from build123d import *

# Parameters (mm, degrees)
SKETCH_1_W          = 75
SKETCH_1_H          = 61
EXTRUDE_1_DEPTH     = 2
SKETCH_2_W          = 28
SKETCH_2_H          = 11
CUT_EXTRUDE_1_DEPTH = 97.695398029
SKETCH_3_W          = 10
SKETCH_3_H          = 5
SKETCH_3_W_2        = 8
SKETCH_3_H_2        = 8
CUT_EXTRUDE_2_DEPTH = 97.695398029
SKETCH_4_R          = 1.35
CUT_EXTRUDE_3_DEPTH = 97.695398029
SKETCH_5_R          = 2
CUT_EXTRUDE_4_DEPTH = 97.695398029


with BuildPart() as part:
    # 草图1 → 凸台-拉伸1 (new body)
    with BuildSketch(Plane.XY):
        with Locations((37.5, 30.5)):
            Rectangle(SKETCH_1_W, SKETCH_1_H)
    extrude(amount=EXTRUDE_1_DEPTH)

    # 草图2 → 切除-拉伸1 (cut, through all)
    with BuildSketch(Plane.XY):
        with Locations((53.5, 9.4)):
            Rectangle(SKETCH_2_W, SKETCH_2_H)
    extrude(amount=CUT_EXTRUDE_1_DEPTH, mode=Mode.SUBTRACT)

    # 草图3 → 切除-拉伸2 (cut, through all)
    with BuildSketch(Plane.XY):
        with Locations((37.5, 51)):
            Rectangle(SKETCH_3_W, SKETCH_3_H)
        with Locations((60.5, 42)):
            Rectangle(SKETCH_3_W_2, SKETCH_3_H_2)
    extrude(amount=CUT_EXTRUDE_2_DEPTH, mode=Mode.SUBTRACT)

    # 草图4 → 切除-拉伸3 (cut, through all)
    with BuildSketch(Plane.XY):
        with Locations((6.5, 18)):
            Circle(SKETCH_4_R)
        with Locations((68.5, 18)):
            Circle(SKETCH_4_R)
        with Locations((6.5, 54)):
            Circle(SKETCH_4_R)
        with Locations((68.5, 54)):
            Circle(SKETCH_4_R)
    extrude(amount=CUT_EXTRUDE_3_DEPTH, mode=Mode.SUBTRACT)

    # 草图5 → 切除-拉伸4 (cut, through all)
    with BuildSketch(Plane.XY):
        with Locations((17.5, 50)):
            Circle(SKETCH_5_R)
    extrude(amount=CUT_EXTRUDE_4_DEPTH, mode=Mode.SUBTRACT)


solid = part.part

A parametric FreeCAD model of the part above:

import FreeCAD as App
import Part
import Sketcher


def add_polygon(sketch, points):
    """Adds a closed chain of lines whose ends are joined by coincident constraints."""
    first, n = sketch.GeometryCount, len(points)
    for a, b in zip(points, points[1:] + points[:1]):
        sketch.addGeometry(Part.LineSegment(App.Vector(*a, 0), App.Vector(*b, 0)), False)
    for i in range(n):
        sketch.addConstraint(Sketcher.Constraint("Coincident", first + i, 2, first + (i + 1) % n, 1))

doc = App.newDocument("Part")
body = doc.addObject("PartDesign::Body", "Body")

sketch1 = body.newObject("Sketcher::SketchObject", "Sketch")
sketch1.AttachmentSupport = (doc.getObject("XY_Plane"), [""])
sketch1.MapMode = "FlatFace"
add_polygon(sketch1, [(0, 61), (0, 0), (75, 0), (75, 61)])
sketch1.addConstraint(Sketcher.Constraint("Vertical", 0))
sketch1.addConstraint(Sketcher.Constraint("Horizontal", 1))
sketch1.addConstraint(Sketcher.Constraint("Vertical", 2))
sketch1.addConstraint(Sketcher.Constraint("Horizontal", 3))
sketch1.addConstraint(Sketcher.Constraint("Coincident", 0, 2, -1, 1))
sketch1.addConstraint(Sketcher.Constraint("DistanceX", 1, 1, 1, 2, 75.0))
sketch1.addConstraint(Sketcher.Constraint("DistanceY", 0, 2, 0, 1, 61.0))
pad1 = body.newObject("PartDesign::Pad", "Pad")
pad1.Profile = sketch1
pad1.Length = 2

sketch2 = body.newObject("Sketcher::SketchObject", "Sketch001")
sketch2.AttachmentSupport = (doc.getObject("XY_Plane"), [""])
sketch2.MapMode = "FlatFace"
add_polygon(sketch2, [(39.5, 14.9), (39.5, 3.9), (67.5, 3.9), (67.5, 14.9)])
sketch2.addConstraint(Sketcher.Constraint("Vertical", 0))
sketch2.addConstraint(Sketcher.Constraint("Horizontal", 1))
sketch2.addConstraint(Sketcher.Constraint("Vertical", 2))
sketch2.addConstraint(Sketcher.Constraint("Horizontal", 3))
sketch2.addConstraint(Sketcher.Constraint("DistanceX", 1, 1, 1, 2, 28.0))
sketch2.addConstraint(Sketcher.Constraint("DistanceY", 0, 2, 0, 1, 11.0))
sketch2.addConstraint(Sketcher.Constraint("DistanceX", -1, 1, 0, 2, 39.5))
sketch2.addConstraint(Sketcher.Constraint("DistanceY", -1, 1, 0, 2, 3.9))
pocket1 = body.newObject("PartDesign::Pocket", "Pocket")
pocket1.Profile = sketch2
pocket1.Type = "ThroughAll"
pocket1.Reversed = True

sketch3 = body.newObject("Sketcher::SketchObject", "Sketch002")
sketch3.AttachmentSupport = (doc.getObject("XY_Plane"), [""])
sketch3.MapMode = "FlatFace"
add_polygon(sketch3, [(32.5, 53.5), (32.5, 48.5), (42.5, 48.5), (42.5, 53.5)])
add_polygon(sketch3, [(56.5, 46), (56.5, 38), (64.5, 38), (64.5, 46)])
sketch3.addConstraint(Sketcher.Constraint("Vertical", 0))
sketch3.addConstraint(Sketcher.Constraint("Horizontal", 1))
sketch3.addConstraint(Sketcher.Constraint("Vertical", 2))
sketch3.addConstraint(Sketcher.Constraint("Horizontal", 3))
sketch3.addConstraint(Sketcher.Constraint("Vertical", 4))
sketch3.addConstraint(Sketcher.Constraint("Horizontal", 5))
sketch3.addConstraint(Sketcher.Constraint("Vertical", 6))
sketch3.addConstraint(Sketcher.Constraint("Horizontal", 7))
sketch3.addConstraint(Sketcher.Constraint("Equal", 7, 4))
sketch3.addConstraint(Sketcher.Constraint("DistanceX", 1, 1, 1, 2, 10.0))
sketch3.addConstraint(Sketcher.Constraint("DistanceX", 5, 1, 5, 2, 8.0))
sketch3.addConstraint(Sketcher.Constraint("DistanceY", 0, 2, 0, 1, 5.0))
sketch3.addConstraint(Sketcher.Constraint("DistanceY", -1, 1, 4, 2, 38.0))
sketch3.addConstraint(Sketcher.Constraint("DistanceX", 1, 2, 4, 2, 14.0))
sketch3.addConstraint(Sketcher.Constraint("DistanceX", -1, 1, 0, 2, 32.5))
sketch3.addConstraint(Sketcher.Constraint("DistanceY", -1, 1, 0, 2, 48.5))
pocket2 = body.newObject("PartDesign::Pocket", "Pocket001")
pocket2.Profile = sketch3
pocket2.Type = "ThroughAll"
pocket2.Reversed = True

sketch4 = body.newObject("Sketcher::SketchObject", "Sketch003")
sketch4.AttachmentSupport = (doc.getObject("XY_Plane"), [""])
sketch4.MapMode = "FlatFace"
sketch4.addGeometry(Part.Circle(App.Vector(6.5, 18, 0), App.Vector(0, 0, 1), 1.35), False)
sketch4.addGeometry(Part.Circle(App.Vector(68.5, 18, 0), App.Vector(0, 0, 1), 1.35), False)
sketch4.addGeometry(Part.Circle(App.Vector(6.5, 54, 0), App.Vector(0, 0, 1), 1.35), False)
sketch4.addGeometry(Part.Circle(App.Vector(68.5, 54, 0), App.Vector(0, 0, 1), 1.35), False)
sketch4.addConstraint(Sketcher.Constraint("Equal", 0, 1))
sketch4.addConstraint(Sketcher.Constraint("Equal", 1, 2))
sketch4.addConstraint(Sketcher.Constraint("Equal", 2, 3))
sketch4.addConstraint(Sketcher.Constraint("Horizontal", 0, 3, 1, 3))
sketch4.addConstraint(Sketcher.Constraint("Horizontal", 2, 3, 3, 3))
sketch4.addConstraint(Sketcher.Constraint("Vertical", 0, 3, 2, 3))
sketch4.addConstraint(Sketcher.Constraint("Vertical", 1, 3, 3, 3))
sketch4.addConstraint(Sketcher.Constraint("Diameter", 0, 2.7))
sketch4.addConstraint(Sketcher.Constraint("DistanceY", -1, 1, 0, 3, 18.0))
sketch4.addConstraint(Sketcher.Constraint("DistanceY", -1, 1, 2, 3, 54.0))
sketch4.addConstraint(Sketcher.Constraint("DistanceX", 0, 3, 1, 3, 62.0))
sketch4.addConstraint(Sketcher.Constraint("DistanceX", -1, 1, 0, 3, 6.5))
pocket3 = body.newObject("PartDesign::Pocket", "Pocket002")
pocket3.Profile = sketch4
pocket3.Type = "ThroughAll"
pocket3.Reversed = True

sketch5 = body.newObject("Sketcher::SketchObject", "Sketch004")
sketch5.AttachmentSupport = (doc.getObject("XY_Plane"), [""])
sketch5.MapMode = "FlatFace"
sketch5.addGeometry(Part.Circle(App.Vector(17.5, 50, 0), App.Vector(0, 0, 1), 2), False)
sketch5.addConstraint(Sketcher.Constraint("Diameter", 0, 4.0))
sketch5.addConstraint(Sketcher.Constraint("DistanceY", -1, 1, 0, 3, 50.0))
sketch5.addConstraint(Sketcher.Constraint("DistanceX", -1, 1, 0, 3, 17.5))
pocket4 = body.newObject("PartDesign::Pocket", "Pocket003")
pocket4.Profile = sketch5
pocket4.Type = "ThroughAll"
pocket4.Reversed = True

doc.recompute()
